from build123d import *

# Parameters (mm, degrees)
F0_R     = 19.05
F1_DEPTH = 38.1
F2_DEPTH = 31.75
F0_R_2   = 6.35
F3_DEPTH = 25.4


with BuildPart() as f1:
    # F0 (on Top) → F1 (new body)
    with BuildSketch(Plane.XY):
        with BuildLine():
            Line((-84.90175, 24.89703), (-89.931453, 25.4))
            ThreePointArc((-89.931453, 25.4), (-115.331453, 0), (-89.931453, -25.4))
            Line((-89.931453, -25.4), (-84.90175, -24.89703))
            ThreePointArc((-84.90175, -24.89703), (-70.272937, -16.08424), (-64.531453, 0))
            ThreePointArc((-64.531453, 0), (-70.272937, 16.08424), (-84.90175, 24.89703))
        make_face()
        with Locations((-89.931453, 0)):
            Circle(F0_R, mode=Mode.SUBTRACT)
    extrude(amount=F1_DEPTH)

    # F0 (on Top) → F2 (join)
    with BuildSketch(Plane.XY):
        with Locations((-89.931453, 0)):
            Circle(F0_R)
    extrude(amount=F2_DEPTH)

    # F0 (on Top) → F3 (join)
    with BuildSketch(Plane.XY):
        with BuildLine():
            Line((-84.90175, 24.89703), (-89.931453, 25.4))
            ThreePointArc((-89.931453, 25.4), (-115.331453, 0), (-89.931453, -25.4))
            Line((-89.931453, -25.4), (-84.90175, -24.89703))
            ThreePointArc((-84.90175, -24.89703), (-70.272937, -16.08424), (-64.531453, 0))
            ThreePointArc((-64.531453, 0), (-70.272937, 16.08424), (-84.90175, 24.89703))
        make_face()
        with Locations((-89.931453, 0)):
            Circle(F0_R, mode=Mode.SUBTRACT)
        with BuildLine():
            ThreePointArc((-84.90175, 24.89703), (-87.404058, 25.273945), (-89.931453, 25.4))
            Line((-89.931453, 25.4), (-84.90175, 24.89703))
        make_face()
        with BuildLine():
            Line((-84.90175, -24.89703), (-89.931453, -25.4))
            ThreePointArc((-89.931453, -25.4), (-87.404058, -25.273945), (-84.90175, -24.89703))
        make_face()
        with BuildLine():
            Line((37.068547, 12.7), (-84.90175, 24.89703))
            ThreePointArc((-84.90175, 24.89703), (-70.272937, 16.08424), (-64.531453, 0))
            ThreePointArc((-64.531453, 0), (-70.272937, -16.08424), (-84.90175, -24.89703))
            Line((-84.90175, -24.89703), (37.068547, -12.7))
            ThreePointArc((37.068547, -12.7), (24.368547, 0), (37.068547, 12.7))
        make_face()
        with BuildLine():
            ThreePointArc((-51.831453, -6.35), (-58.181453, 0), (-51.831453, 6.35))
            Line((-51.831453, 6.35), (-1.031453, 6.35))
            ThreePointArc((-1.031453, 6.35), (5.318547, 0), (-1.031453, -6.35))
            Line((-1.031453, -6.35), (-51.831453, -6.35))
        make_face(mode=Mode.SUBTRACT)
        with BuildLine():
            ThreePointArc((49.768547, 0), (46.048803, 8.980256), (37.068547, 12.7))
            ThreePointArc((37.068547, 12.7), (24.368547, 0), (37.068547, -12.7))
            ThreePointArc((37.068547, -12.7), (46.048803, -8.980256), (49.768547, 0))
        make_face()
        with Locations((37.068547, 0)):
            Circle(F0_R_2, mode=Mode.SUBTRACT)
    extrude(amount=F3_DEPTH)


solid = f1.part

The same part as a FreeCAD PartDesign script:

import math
import FreeCAD as App
import Part
import Sketcher

V = App.Vector
Q = App.Units.Quantity

doc = App.newDocument("Part")
params = doc.addObject("Spreadsheet::Sheet", "Params")
for row, (alias, value) in enumerate([
    ("sketch1_radius", "1 in"),
    ("sketch1_diameter", "1.5 in"),
    ("pad1_length", "1.5 in"),
    ("sketch2_diameter", "1.5 in"),
    ("pad2_length", "1.25 in"),
    ("sketch3_radius", "1 in"),
    ("sketch3_diameter", "1.5 in"),
    ("sketch3_diameter2", "0.5 in"),
    ("sketch3_radius2", "0.5 in"),
    ("sketch3_width", "2 in"),
    ("pad3_length", "1 in"),
], start=1):
    params.set(f"A{row}", alias)
    params.set(f"B{row}", "=" + value)
    params.setAlias(f"B{row}", alias)

body = doc.addObject("PartDesign::Body", "Body")

# Sketch on XY plane
sketch1 = body.newObject("Sketcher::SketchObject", "Sketch")
sketch1.AttachmentSupport = (doc.getObject("XY_Plane"), [""])
sketch1.MapMode = "FlatFace"
sketch1.addGeometry([
    Part.LineSegment(V(-85, 25, 0), V(-90, 25, 0)),  # 0
    Part.ArcOfCircle(Part.Circle(V(-90, 0, 0), V(0, 0, 1), 25), math.radians(90), math.radians(270)),  # 1
    Part.LineSegment(V(-90, -25, 0), V(-85, -25, 0)),  # 2
    Part.ArcOfCircle(Part.Circle(V(-90, 0, 0), V(0, 0, 1), 25), math.radians(-79), math.radians(0)),  # 3
    Part.ArcOfCircle(Part.Circle(V(-90, 0, 0), V(0, 0, 1), 25), math.radians(0), math.radians(79)),  # 4
    Part.Circle(V(-90, 0, 0), V(0, 0, 1), 19),  # 5
], False)
sketch1.addConstraint([
    Sketcher.Constraint("Coincident", 0, 2, 1, 1),
    Sketcher.Constraint("Coincident", 1, 2, 2, 1),
    Sketcher.Constraint("Coincident", 2, 2, 3, 1),
    Sketcher.Constraint("Tangent", 3, 2, 4, 1),
    Sketcher.Constraint("Coincident", 4, 2, 0, 1),
    Sketcher.Constraint("Coincident", 3, 3, 1, 3),
    Sketcher.Constraint("Coincident", 5, 3, 1, 3),
    Sketcher.Constraint("Equal", 1, 3),
    Sketcher.Constraint("Equal", 3, 4),
    Sketcher.Constraint("Symmetric", 0, 2, 1, 2, -1),
    Sketcher.Constraint("PointOnObject", 3, 2, -1),
    Sketcher.Constraint("Vertical", 5, 3, 0, 2),
    Sketcher.Constraint("Vertical", 2, 2, 4, 2),
    Sketcher.Constraint("Radius", 1, Q("1 in")),
    Sketcher.Constraint("Diameter", 5, Q("1.5 in")),
    Sketcher.Constraint("DistanceX", 3, 3, 2, 2, 5.029702),
    Sketcher.Constraint("DistanceX", 3, 3, -1, 1, 89.931452),
])
sketch1.setExpression("Constraints[13]", "Params.sketch1_radius")
sketch1.setExpression("Constraints[14]", "Params.sketch1_diameter")
pad1 = body.newObject("PartDesign::Pad", "Pad")
pad1.Profile = sketch1
pad1.setExpression("Length", "Params.pad1_length")

# Sketch on XY plane
sketch2 = body.newObject("Sketcher::SketchObject", "Sketch001")
sketch2.AttachmentSupport = (doc.getObject("XY_Plane"), [""])
sketch2.MapMode = "FlatFace"
sketch2.addGeometry(Part.Circle(V(-90, 0, 0), V(0, 0, 1), 19), False)
sketch2.addConstraint([
    Sketcher.Constraint("PointOnObject", 0, 3, -1),
    Sketcher.Constraint("Diameter", 0, Q("1.5 in")),
    Sketcher.Constraint("DistanceX", 0, 3, -1, 1, 89.931453),
])
sketch2.setExpression("Constraints[1]", "Params.sketch2_diameter")
pad2 = body.newObject("PartDesign::Pad", "Pad001")
pad2.Profile = sketch2
pad2.setExpression("Length", "Params.pad2_length")

# Sketch on XY plane
sketch3 = body.newObject("Sketcher::SketchObject", "Sketch002")
sketch3.AttachmentSupport = (doc.getObject("XY_Plane"), [""])
sketch3.MapMode = "FlatFace"
sketch3.addGeometry([
    Part.ArcOfCircle(Part.Circle(V(-90, 0, 0), V(0, 0, 1), 25), math.radians(78.58), math.radians(90)),  # 0
    Part.ArcOfCircle(Part.Circle(V(-90, 0, 0), V(0, 0, 1), 25), math.radians(90), math.radians(270)),  # 1
    Part.ArcOfCircle(Part.Circle(V(-90, 0, 0), V(0, 0, 1), 25), math.radians(-90), math.radians(-78.58)),  # 2
    Part.LineSegment(V(-85, -25, 0), V(37, -13, 0)),  # 3
    Part.ArcOfCircle(Part.Circle(V(37, 0, 0), V(0, 0, 1), 13), math.radians(-90), math.radians(0)),  # 4
    Part.ArcOfCircle(Part.Circle(V(37, 0, 0), V(0, 0, 1), 13), math.radians(0), math.radians(90)),  # 5
    Part.LineSegment(V(37, 13, 0), V(-85, 25, 0)),  # 6
    Part.Circle(V(-90, 0, 0), V(0, 0, 1), 19),  # 7
    Part.LineSegment(V(-1, -6, 0), V(-52, -6, 0)),  # 8
    Part.ArcOfCircle(Part.Circle(V(-52, 0, 0), V(0, 0, 1), 6), math.radians(90), math.radians(270)),  # 9
    Part.LineSegment(V(-52, 6, 0), V(-1, 6, 0)),  # 10
    Part.ArcOfCircle(Part.Circle(V(-1, 0, 0), V(0, 0, 1), 6), math.radians(-90), math.radians(90)),  # 11
    Part.Circle(V(37, 0, 0), V(0, 0, 1), 6),  # 12
], False)
sketch3.addConstraint([
    Sketcher.Constraint("Tangent", 0, 2, 1, 1),
    Sketcher.Constraint("Tangent", 1, 2, 2, 1),
    Sketcher.Constraint("Coincident", 2, 2, 3, 1),
    Sketcher.Constraint("Coincident", 3, 2, 4, 1),
    Sketcher.Constraint("Tangent", 4, 2, 5, 1),
    Sketcher.Constraint("Coincident", 5, 2, 6, 1),
    Sketcher.Constraint("Coincident", 6, 2, 0, 1),
    Sketcher.Constraint("Tangent", 8, 2, 9, 2),
    Sketcher.Constraint("Tangent", 9, 1, 10, 1),
    Sketcher.Constraint("Tangent", 10, 2, 11, 2),
    Sketcher.Constraint("Tangent", 11, 1, 8, 1),
    Sketcher.Constraint("Horizontal", 8),
    Sketcher.Constraint("Horizontal", 10),
    Sketcher.Constraint("Coincident", 7, 3, 1, 3),
    Sketcher.Constraint("Coincident", 12, 3, 4, 3),
    Sketcher.Constraint("Equal", 0, 2),
    Sketcher.Constraint("Equal", 4, 5),
    Sketcher.Constraint("Equal", 11, 12),
    Sketcher.Constraint("Symmetric", 0, 2, 1, 2, -1),
    Sketcher.Constraint("Symmetric", 3, 2, 5, 2, -1),
    Sketcher.Constraint("PointOnObject", 9, 3, -1),
    Sketcher.Constraint("PointOnObject", 4, 2, -1),
    Sketcher.Constraint("Vertical", 7, 3, 0, 2),
    Sketcher.Constraint("Vertical", 12, 3, 3, 2),
    Sketcher.Constraint("Vertical", 2, 2, 6, 2),
    Sketcher.Constraint("Radius", 1, Q("1 in")),
    Sketcher.Constraint("Diameter", 7, Q("1.5 in")),
    Sketcher.Constraint("Diameter", 12, Q("0.5 in")),
    Sketcher.Constraint("Radius", 4, Q("0.5 in")),
    Sketcher.Constraint("DistanceX", 8, 2, 8, 1, Q("2 in")),
    Sketcher.Constraint("DistanceX", 1, 3, 4, 3, Q("5 in")),
    Sketcher.Constraint("DistanceX", 11, 3, 4, 2, Q("2 in")),
    Sketcher.Constraint("Radius", 0, 25.399946),
    Sketcher.Constraint("DistanceY", 2, 2, 0, 3, Q("0.9802002 in")),
    Sketcher.Constraint("DistanceX", 2, 2, -1, 1, 84.90175),
])
sketch3.setExpression("Constraints[25]", "Params.sketch3_radius")
sketch3.setExpression("Constraints[26]", "Params.sketch3_diameter")
sketch3.setExpression("Constraints[27]", "Params.sketch3_diameter2")
sketch3.setExpression("Constraints[28]", "Params.sketch3_radius2")
sketch3.setExpression("Constraints[29]", "Params.sketch3_width")
pad3 = body.newObject("PartDesign::Pad", "Pad002")
pad3.Profile = sketch3
pad3.setExpression("Length", "Params.pad3_length")

doc.recompute()
